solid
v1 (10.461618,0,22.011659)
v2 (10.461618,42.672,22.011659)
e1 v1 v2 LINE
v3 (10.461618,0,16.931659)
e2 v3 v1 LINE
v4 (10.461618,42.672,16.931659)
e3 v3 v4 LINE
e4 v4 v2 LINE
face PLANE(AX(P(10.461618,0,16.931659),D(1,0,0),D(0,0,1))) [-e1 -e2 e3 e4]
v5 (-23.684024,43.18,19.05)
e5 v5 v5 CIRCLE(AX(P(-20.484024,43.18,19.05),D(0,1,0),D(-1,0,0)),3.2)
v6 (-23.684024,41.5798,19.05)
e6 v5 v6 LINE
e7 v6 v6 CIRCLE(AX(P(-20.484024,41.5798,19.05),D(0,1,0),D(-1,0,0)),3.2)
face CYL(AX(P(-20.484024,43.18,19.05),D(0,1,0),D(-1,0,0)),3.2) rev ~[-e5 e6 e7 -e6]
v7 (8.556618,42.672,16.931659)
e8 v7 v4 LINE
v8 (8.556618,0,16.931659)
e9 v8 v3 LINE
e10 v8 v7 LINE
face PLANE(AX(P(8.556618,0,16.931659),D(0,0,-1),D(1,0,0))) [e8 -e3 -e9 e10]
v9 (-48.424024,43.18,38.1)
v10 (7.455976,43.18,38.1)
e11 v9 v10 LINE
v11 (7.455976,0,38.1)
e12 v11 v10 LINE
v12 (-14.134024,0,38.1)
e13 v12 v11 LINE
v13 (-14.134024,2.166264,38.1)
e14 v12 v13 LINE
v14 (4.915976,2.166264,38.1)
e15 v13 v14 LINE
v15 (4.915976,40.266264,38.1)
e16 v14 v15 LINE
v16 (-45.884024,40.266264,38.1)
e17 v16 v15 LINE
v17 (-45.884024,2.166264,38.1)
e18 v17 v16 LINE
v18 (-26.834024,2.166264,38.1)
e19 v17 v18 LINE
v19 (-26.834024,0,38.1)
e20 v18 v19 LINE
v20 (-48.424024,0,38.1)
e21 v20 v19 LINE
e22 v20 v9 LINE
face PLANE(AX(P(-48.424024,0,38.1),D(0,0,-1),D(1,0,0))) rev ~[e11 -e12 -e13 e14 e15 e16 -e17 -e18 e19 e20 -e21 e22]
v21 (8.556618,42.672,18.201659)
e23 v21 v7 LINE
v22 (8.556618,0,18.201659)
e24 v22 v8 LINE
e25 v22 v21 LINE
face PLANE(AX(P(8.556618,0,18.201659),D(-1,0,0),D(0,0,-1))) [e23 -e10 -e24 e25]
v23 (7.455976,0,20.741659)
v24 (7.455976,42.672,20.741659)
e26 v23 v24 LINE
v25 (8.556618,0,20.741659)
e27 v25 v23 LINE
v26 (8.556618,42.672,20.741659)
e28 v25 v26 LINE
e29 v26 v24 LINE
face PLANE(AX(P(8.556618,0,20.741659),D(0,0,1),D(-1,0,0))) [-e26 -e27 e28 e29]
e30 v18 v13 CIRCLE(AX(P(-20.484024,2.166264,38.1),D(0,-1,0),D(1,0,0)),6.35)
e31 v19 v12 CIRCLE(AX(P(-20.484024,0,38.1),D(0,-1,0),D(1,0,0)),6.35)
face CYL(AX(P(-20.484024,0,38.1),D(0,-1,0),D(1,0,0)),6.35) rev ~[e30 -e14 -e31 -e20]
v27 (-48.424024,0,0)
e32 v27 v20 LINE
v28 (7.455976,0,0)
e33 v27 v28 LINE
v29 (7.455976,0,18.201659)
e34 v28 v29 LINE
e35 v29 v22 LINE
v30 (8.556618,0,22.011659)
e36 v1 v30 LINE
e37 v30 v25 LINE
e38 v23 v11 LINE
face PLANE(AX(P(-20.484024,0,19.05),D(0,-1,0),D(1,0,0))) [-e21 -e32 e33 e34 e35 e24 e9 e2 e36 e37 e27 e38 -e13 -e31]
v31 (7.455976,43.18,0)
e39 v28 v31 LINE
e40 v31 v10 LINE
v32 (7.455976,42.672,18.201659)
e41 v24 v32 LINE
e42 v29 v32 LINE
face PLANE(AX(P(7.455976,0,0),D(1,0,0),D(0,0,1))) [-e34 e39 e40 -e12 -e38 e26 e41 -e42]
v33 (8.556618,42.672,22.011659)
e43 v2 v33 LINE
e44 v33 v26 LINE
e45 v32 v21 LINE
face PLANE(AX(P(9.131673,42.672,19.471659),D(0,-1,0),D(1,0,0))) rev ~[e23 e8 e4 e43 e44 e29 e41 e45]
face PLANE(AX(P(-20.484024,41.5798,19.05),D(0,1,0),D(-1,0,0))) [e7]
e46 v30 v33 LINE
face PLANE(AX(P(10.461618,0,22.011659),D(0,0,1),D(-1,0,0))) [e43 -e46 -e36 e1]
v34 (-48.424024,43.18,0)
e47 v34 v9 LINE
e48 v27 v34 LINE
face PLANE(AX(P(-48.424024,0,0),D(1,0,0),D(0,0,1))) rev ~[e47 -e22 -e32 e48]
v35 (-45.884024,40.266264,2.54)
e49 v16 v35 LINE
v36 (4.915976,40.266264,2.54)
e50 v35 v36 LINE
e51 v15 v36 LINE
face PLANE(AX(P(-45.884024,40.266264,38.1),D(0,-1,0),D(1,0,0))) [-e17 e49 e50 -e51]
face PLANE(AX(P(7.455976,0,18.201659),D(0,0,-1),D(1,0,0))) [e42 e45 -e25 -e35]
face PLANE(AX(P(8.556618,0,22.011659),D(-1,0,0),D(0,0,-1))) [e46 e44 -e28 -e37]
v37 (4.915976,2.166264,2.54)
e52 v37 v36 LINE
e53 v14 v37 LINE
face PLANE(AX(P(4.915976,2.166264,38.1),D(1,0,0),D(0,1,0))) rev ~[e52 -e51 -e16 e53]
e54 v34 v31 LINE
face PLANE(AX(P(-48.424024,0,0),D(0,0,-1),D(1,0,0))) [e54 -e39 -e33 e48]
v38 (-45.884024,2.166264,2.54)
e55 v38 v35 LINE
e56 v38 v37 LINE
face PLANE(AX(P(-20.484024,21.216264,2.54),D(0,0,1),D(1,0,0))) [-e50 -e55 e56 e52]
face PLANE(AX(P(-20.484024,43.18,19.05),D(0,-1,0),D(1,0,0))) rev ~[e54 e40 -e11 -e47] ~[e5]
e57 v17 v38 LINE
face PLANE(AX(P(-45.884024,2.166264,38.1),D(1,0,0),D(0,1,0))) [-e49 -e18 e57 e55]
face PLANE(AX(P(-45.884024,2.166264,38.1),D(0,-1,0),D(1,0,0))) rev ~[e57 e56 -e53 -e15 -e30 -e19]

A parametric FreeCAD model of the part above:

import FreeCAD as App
import Part
import Sketcher
Q = App.Units.Quantity

doc = App.newDocument("Part")
body = doc.addObject("PartDesign::Body", "Body")

# Sketch on XZ plane
sketch1 = doc.addObject("Sketcher::SketchObject", "Sketch")
body.addObject(sketch1)
sketch1.AttachmentSupport = (doc.XZ_Plane, [""])
sketch1.MapMode = "FlatFace"
sketch1.addGeometry([
    Part.LineSegment(App.Vector(-48, 38, 0), App.Vector(-48, 0, 0)),
    Part.LineSegment(App.Vector(-48, 0, 0), App.Vector(7, 0, 0)),
    Part.LineSegment(App.Vector(7, 0, 0), App.Vector(7, 38, 0)),
    Part.LineSegment(App.Vector(7, 38, 0), App.Vector(-48, 38, 0)),
], False)
sketch1.addConstraint([
    Sketcher.Constraint("Coincident", 0, 2, 1, 1),
    Sketcher.Constraint("Coincident", 1, 2, 2, 1),
    Sketcher.Constraint("Coincident", 2, 2, 3, 1),
    Sketcher.Constraint("Coincident", 3, 2, 0, 1),
    Sketcher.Constraint("Vertical", 0),
    Sketcher.Constraint("Horizontal", 1),
    Sketcher.Constraint("Vertical", 2),
    Sketcher.Constraint("Horizontal", 3),
    Sketcher.Constraint("PointOnObject", 0, 2, -1),
    Sketcher.Constraint("DistanceX", 1, 1, 1, 2, Q("2.2 in")),
    Sketcher.Constraint("DistanceY", 0, 2, 0, 1, Q("1.5 in")),
    Sketcher.Constraint("DistanceX", 0, 2, -1, 1, Q("48.424024 mm")),
])
pad1 = doc.addObject("PartDesign::Pad", "Pad")
body.addObject(pad1)
pad1.Profile = sketch1
pad1.Length = Q("1.7 in")
pad1.Reversed = True

# Sketch on XY plane
sketch2 = doc.addObject("Sketcher::SketchObject", "Sketch001")
body.addObject(sketch2)
sketch2.AttachmentSupport = (doc.XY_Plane, [""])
sketch2.MapMode = "FlatFace"
sketch2.AttachmentOffset = App.Placement(App.Vector(0, 0, 1.5 * 25.4), App.Rotation())
sketch2.addGeometry([
    Part.LineSegment(App.Vector(-46, 40, 0), App.Vector(-46, 2, 0)),
    Part.LineSegment(App.Vector(-46, 2, 0), App.Vector(5, 2, 0)),
    Part.LineSegment(App.Vector(5, 2, 0), App.Vector(5, 40, 0)),
    Part.LineSegment(App.Vector(5, 40, 0), App.Vector(-46, 40, 0)),
], False)
sketch2.addConstraint([
    Sketcher.Constraint("Coincident", 0, 2, 1, 1),
    Sketcher.Constraint("Coincident", 1, 2, 2, 1),
    Sketcher.Constraint("Coincident", 2, 2, 3, 1),
    Sketcher.Constraint("Coincident", 3, 2, 0, 1),
    Sketcher.Constraint("Vertical", 0),
    Sketcher.Constraint("Horizontal", 1),
    Sketcher.Constraint("Vertical", 2),
    Sketcher.Constraint("Horizontal", 3),
    Sketcher.Constraint("DistanceX", 1, 1, 1, 2, Q("2 in")),
    Sketcher.Constraint("DistanceY", 0, 2, 0, 1, Q("1.5 in")),
    Sketcher.Constraint("DistanceX", 0, 2, -1, 1, Q("45.884024 mm")),
    Sketcher.Constraint("DistanceY", -1, 1, 0, 2, Q("2.166264 mm")),
])
pocket1 = doc.addObject("PartDesign::Pocket", "Pocket")
body.addObject(pocket1)
pocket1.Profile = sketch2
pocket1.Length = Q("1.4 in")

# Sketch on XZ plane
sketch3 = doc.addObject("Sketcher::SketchObject", "Sketch002")
body.addObject(sketch3)
sketch3.AttachmentSupport = (doc.XZ_Plane, [""])
sketch3.MapMode = "FlatFace"
sketch3.addGeometry(Part.Circle(App.Vector(-20, 38, 0), App.Vector(0, 0, 1), 6), False)
sketch3.addConstraint([
    Sketcher.Constraint("Diameter", 0, Q("0.5 in")),
    Sketcher.Constraint("DistanceY", -1, 1, 0, 3, Q("1.5 in")),
    Sketcher.Constraint("DistanceX", 0, 3, -1, 1, Q("20.484024 mm")),
])
pocket2 = doc.addObject("PartDesign::Pocket", "Pocket001")
body.addObject(pocket2)
pocket2.Profile = sketch3
pocket2.Length = Q("1 in")

# Sketch on XZ plane
sketch4 = doc.addObject("Sketcher::SketchObject", "Sketch003")
body.addObject(sketch4)
sketch4.AttachmentSupport = (doc.XZ_Plane, [""])
sketch4.MapMode = "FlatFace"
sketch4.AttachmentOffset = App.Placement(App.Vector(0, 0, -1.7 * 25.4), App.Rotation())
sketch4.addGeometry(Part.Circle(App.Vector(-20.5, 19.1, 0), App.Vector(0, 0, 1), 3.2), False)
sketch4.addConstraint([
    Sketcher.Constraint("Diameter", 0, Q("6.4 mm")),
    Sketcher.Constraint("DistanceY", -1, 1, 0, 3, Q("0.75 in")),
    Sketcher.Constraint("DistanceX", 0, 3, -1, 1, Q("20.484024 mm")),
])
pocket3 = doc.addObject("PartDesign::Pocket", "Pocket002")
body.addObject(pocket3)
pocket3.Profile = sketch4
pocket3.Length = Q("0.063 in")
pocket3.Reversed = True

# Sketch on XZ plane
sketch5 = doc.addObject("Sketcher::SketchObject", "Sketch004")
body.addObject(sketch5)
sketch5.AttachmentSupport = (doc.XZ_Plane, [""])
sketch5.MapMode = "FlatFace"
sketch5.addGeometry([
    Part.LineSegment(App.Vector(8.6, 22, 0), App.Vector(8.6, 20.7, 0)),  # 0
    Part.LineSegment(App.Vector(8.6, 20.7, 0), App.Vector(7.5, 20.7, 0)),  # 1
    Part.LineSegment(App.Vector(7.5, 20.7, 0), App.Vector(7.5, 18.2, 0)),  # 2
    Part.LineSegment(App.Vector(7.5, 18.2, 0), App.Vector(8.6, 18.2, 0)),  # 3
    Part.LineSegment(App.Vector(8.6, 18.2, 0), App.Vector(8.6, 16.9, 0)),  # 4
    Part.LineSegment(App.Vector(8.6, 16.9, 0), App.Vector(10.5, 16.9, 0)),  # 5
    Part.LineSegment(App.Vector(10.5, 16.9, 0), App.Vector(10.5, 22, 0)),  # 6
    Part.LineSegment(App.Vector(10.5, 22, 0), App.Vector(8.6, 22, 0)),  # 7
], False)
sketch5.addConstraint([
    Sketcher.Constraint("Coincident", 0, 2, 1, 1),
    Sketcher.Constraint("Coincident", 1, 2, 2, 1),
    Sketcher.Constraint("Coincident", 2, 2, 3, 1),
    Sketcher.Constraint("Coincident", 3, 2, 4, 1),
    Sketcher.Constraint("Coincident", 4, 2, 5, 1),
    Sketcher.Constraint("Coincident", 5, 2, 6, 1),
    Sketcher.Constraint("Coincident", 6, 2, 7, 1),
    Sketcher.Constraint("Coincident", 7, 2, 0, 1),
    Sketcher.Constraint("Vertical", 0),
    Sketcher.Constraint("Horizontal", 1),
    Sketcher.Constraint("Vertical", 2),
    Sketcher.Constraint("Horizontal", 3),
    Sketcher.Constraint("Vertical", 4),
    Sketcher.Constraint("Horizontal", 5),
    Sketcher.Constraint("Vertical", 6),
    Sketcher.Constraint("Horizontal", 7),
    Sketcher.Constraint("Vertical", 0, 2, 3, 2),
    Sketcher.Constraint("Equal", 0, 4),
    Sketcher.Constraint("DistanceY", 2, 2, 2, 1, Q("0.1 in")),
    Sketcher.Constraint("DistanceY", 6, 1, 6, 2, Q("0.2 in")),
    Sketcher.Constraint("DistanceX", 5, 1, 5, 2, Q("0.075 in")),
    Sketcher.Constraint("DistanceX", 1, 2, 1, 1, Q("1.100642 mm")),
    Sketcher.Constraint("DistanceY", -1, 1, 0, 2, Q("20.741659 mm")),
    Sketcher.Constraint("DistanceX", -1, 1, 0, 2, Q("8.556618 mm")),
])
pad2 = doc.addObject("PartDesign::Pad", "Pad001")
body.addObject(pad2)
pad2.Profile = sketch5
pad2.Length = Q("1.68 in")
pad2.Reversed = True

doc.recompute()
